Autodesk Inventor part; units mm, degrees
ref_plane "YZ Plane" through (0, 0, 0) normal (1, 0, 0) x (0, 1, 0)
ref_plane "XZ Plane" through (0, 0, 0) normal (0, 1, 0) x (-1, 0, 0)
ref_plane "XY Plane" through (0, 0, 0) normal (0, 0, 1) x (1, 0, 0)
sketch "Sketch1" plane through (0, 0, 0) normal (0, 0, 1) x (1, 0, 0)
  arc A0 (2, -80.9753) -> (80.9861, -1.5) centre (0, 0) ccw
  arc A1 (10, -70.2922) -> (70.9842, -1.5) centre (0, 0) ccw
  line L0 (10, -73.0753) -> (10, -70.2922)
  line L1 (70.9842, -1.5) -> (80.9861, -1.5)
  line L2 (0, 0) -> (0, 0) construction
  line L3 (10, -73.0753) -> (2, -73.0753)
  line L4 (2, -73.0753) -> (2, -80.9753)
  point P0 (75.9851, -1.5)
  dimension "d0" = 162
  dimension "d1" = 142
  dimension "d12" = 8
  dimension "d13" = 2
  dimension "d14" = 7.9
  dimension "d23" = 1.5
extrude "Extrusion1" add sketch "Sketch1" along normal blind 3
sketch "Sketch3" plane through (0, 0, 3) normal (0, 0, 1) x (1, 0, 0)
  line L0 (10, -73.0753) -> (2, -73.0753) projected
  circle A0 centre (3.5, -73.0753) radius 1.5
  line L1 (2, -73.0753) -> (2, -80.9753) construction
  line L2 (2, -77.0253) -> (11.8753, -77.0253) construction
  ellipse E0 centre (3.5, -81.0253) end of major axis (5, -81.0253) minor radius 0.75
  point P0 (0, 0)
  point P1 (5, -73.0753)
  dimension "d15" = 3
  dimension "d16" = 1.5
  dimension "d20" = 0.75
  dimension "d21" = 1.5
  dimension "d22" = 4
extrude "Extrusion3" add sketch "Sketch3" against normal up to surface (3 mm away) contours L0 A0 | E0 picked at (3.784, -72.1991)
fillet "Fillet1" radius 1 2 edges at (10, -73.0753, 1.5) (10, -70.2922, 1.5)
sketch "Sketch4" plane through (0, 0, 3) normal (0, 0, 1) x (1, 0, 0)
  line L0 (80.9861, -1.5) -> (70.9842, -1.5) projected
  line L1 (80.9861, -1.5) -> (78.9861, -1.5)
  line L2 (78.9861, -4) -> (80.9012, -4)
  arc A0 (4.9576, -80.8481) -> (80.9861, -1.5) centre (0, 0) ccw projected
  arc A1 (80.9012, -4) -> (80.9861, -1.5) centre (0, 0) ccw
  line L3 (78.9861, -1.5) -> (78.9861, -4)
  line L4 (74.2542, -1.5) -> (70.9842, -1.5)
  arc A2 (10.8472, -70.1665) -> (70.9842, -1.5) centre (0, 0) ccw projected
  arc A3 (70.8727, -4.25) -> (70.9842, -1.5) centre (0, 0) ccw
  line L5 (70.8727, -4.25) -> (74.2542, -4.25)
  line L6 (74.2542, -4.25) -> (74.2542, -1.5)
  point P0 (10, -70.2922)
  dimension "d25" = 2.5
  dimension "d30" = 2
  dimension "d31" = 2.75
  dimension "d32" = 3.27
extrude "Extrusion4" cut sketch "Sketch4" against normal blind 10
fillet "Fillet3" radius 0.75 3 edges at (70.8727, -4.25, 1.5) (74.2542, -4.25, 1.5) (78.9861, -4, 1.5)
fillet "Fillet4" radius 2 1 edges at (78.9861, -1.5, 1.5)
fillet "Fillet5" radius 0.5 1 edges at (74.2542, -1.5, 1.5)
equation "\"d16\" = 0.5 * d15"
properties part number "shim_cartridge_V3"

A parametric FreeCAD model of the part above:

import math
import FreeCAD as App
import Part
import Sketcher
Q = App.Units.Quantity


def edges_at(feature, points):
    """Names of the edges that pass closest to the given points."""
    edges = feature.Shape.Edges
    near = lambda p: min(range(len(edges)), key=lambda i: edges[i].distToShape(Part.Vertex(*p))[0])
    return sorted({f"Edge{near(p) + 1}" for p in points})

doc = App.newDocument("Part")
body = doc.addObject("PartDesign::Body", "Body")

sketch1 = doc.addObject("Sketcher::SketchObject", "Sketch")
body.addObject(sketch1)
sketch1.AttachmentSupport = (doc.XY_Plane, [""])
sketch1.MapMode = "FlatFace"
sketch1.addGeometry([
    Part.LineSegment(App.Vector(2, -73.1, 0), App.Vector(2, -81, 0)),
    Part.ArcOfCircle(Part.Circle(App.Vector(0, 0, 0), App.Vector(0, 0, 1), 81), math.radians(-89), math.radians(-1)),
    Part.LineSegment(App.Vector(81, -1.5, 0), App.Vector(71, -1.5, 0)),
    Part.ArcOfCircle(Part.Circle(App.Vector(0, 0, 0), App.Vector(0, 0, 1), 71), math.radians(-82), math.radians(-1)),
    Part.LineSegment(App.Vector(10, -70.3, 0), App.Vector(10, -73.1, 0)),
    Part.LineSegment(App.Vector(10, -73.1, 0), App.Vector(2, -73.1, 0)),
], False)
sketch1.addConstraint([
    Sketcher.Constraint("Coincident", 0, 2, 1, 1),
    Sketcher.Constraint("Coincident", 1, 2, 2, 1),
    Sketcher.Constraint("Coincident", 2, 2, 3, 2),
    Sketcher.Constraint("Coincident", 3, 1, 4, 1),
    Sketcher.Constraint("Coincident", 4, 2, 5, 1),
    Sketcher.Constraint("Coincident", 5, 2, 0, 1),
    Sketcher.Constraint("Vertical", 0),
    Sketcher.Constraint("Horizontal", 2),
    Sketcher.Constraint("Vertical", 4),
    Sketcher.Constraint("Horizontal", 5),
    Sketcher.Constraint("Coincident", 1, 3, -1, 1),
    Sketcher.Constraint("Coincident", 3, 3, -1, 1),
    Sketcher.Constraint("Radius", 1, Q("81 mm")),
    Sketcher.Constraint("Radius", 3, Q("71 mm")),
    Sketcher.Constraint("DistanceX", 5, 2, 5, 1, Q("8 mm")),
    Sketcher.Constraint("DistanceY", 0, 2, 0, 1, Q("7.9 mm")),
    Sketcher.Constraint("DistanceX", -1, 1, 0, 2, Q("2 mm")),
    Sketcher.Constraint("DistanceY", 1, 2, -1, 1, Q("1.5 mm")),
])
pad1 = doc.addObject("PartDesign::Pad", "Pad")
body.addObject(pad1)
pad1.Profile = sketch1
pad1.Length = 3

sketch2 = doc.addObject("Sketcher::SketchObject", "Sketch001")
body.addObject(sketch2)
sketch2.AttachmentSupport = (doc.XY_Plane, [""])
sketch2.MapMode = "FlatFace"
sketch2.AttachmentOffset = App.Placement(App.Vector(0, 0, 3), App.Rotation())
sketch2.addGeometry([
    Part.LineSegment(App.Vector(2, -73.0753, 0), App.Vector(5, -73.0753, 0)),
    Part.ArcOfCircle(Part.Circle(App.Vector(3.5, -73.0753, 0), App.Vector(0, 0, 1), 1.5), math.radians(0), math.radians(180)),
    Part.Ellipse(App.Vector(5, -81.0253, 0), App.Vector(3.5, -80.2753, 0), App.Vector(3.5, -81.0253, 0)),
], False)
sketch2.addConstraint([
    Sketcher.Constraint("Block", 2),
    Sketcher.Constraint("Coincident", 0, 1, 1, 2),
    Sketcher.Constraint("Coincident", 1, 1, 0, 2),
    Sketcher.Constraint("Horizontal", 0),
    Sketcher.Constraint("Horizontal", 1, 3, 0, 1),
    Sketcher.Constraint("Radius", 1, Q("1.5 mm")),
    Sketcher.Constraint("DistanceX", -1, 1, 0, 1, Q("2 mm")),
    Sketcher.Constraint("DistanceY", 1, 3, -1, 1, Q("73.0753 mm")),
])
pad2 = doc.addObject("PartDesign::Pad", "Pad001")
body.addObject(pad2)
pad2.Profile = sketch2
pad2.Length = 3
pad2.Reversed = True
doc.recompute()

fillet = doc.addObject("PartDesign::Fillet", "Fillet")
body.addObject(fillet)
fillet.Base = (pad2, edges_at(pad2, [(10, -73.075, 1.5), (10, -70.292, 1.5)]))
fillet.Radius = 1

sketch3 = doc.addObject("Sketcher::SketchObject", "Sketch002")
body.addObject(sketch3)
sketch3.AttachmentSupport = (doc.XY_Plane, [""])
sketch3.MapMode = "FlatFace"
sketch3.AttachmentOffset = App.Placement(App.Vector(0, 0, 3), App.Rotation())
sketch3.addGeometry([
    Part.ArcOfCircle(Part.Circle(App.Vector(0, 0, 0), App.Vector(0, 0, 1), 81), math.radians(-2.83), math.radians(-1.06)),
    Part.LineSegment(App.Vector(81, -1.5, 0), App.Vector(79, -1.5, 0)),
    Part.LineSegment(App.Vector(79, -1.5, 0), App.Vector(79, -4, 0)),
    Part.LineSegment(App.Vector(79, -4, 0), App.Vector(80.9, -4, 0)),
    Part.LineSegment(App.Vector(74.3, -4.2, 0), App.Vector(74.3, -1.5, 0)),
    Part.LineSegment(App.Vector(74.3, -1.5, 0), App.Vector(71, -1.5, 0)),
    Part.ArcOfCircle(Part.Circle(App.Vector(0, 0, 0), App.Vector(0, 0, 1), 71), math.radians(-3.43), math.radians(-1.21)),
    Part.LineSegment(App.Vector(70.9, -4.2, 0), App.Vector(74.3, -4.2, 0)),
], False)
sketch3.addConstraint([
    Sketcher.Constraint("Coincident", 0, 2, 1, 1),
    Sketcher.Constraint("Coincident", 1, 2, 2, 1),
    Sketcher.Constraint("Coincident", 2, 2, 3, 1),
    Sketcher.Constraint("Coincident", 3, 2, 0, 1),
    Sketcher.Constraint("Coincident", 4, 2, 5, 1),
    Sketcher.Constraint("Coincident", 5, 2, 6, 2),
    Sketcher.Constraint("Coincident", 6, 1, 7, 1),
    Sketcher.Constraint("Coincident", 7, 2, 4, 1),
    Sketcher.Constraint("Horizontal", 1),
    Sketcher.Constraint("Vertical", 2),
    Sketcher.Constraint("Horizontal", 3),
    Sketcher.Constraint("Vertical", 4),
    Sketcher.Constraint("Horizontal", 5),
    Sketcher.Constraint("Horizontal", 7),
    Sketcher.Constraint("Coincident", 0, 3, -1, 1),
    Sketcher.Constraint("Coincident", 6, 3, -1, 1),
    Sketcher.Constraint("Horizontal", 1, 2, 4, 2),
    Sketcher.Constraint("DistanceX", 1, 2, 1, 1, Q("2 mm")),
    Sketcher.Constraint("DistanceY", 2, 2, 2, 1, Q("2.5 mm")),
    Sketcher.Constraint("Radius", 0, Q("81 mm")),
    Sketcher.Constraint("Radius", 6, Q("71 mm")),
    Sketcher.Constraint("DistanceX", 5, 2, 5, 1, Q("3.27 mm")),
    Sketcher.Constraint("DistanceY", 4, 1, 4, 2, Q("2.75 mm")),
    Sketcher.Constraint("DistanceY", 2, 2, -1, 1, Q("4 mm")),
])
pocket1 = doc.addObject("PartDesign::Pocket", "Pocket")
body.addObject(pocket1)
pocket1.Profile = sketch3
pocket1.Length = 10
doc.recompute()

fillet2 = doc.addObject("PartDesign::Fillet", "Fillet001")
body.addObject(fillet2)
fillet2.Base = (pocket1, edges_at(pocket1, [(70.873, -4.25, 1.5), (74.254, -4.25, 1.5), (78.986, -4, 1.5)]))
fillet2.Radius = 0.75
doc.recompute()

fillet3 = doc.addObject("PartDesign::Fillet", "Fillet002")
body.addObject(fillet3)
fillet3.Base = (fillet2, edges_at(fillet2, [(78.986, -1.5, 1.5)]))
fillet3.Radius = 2
doc.recompute()

fillet4 = doc.addObject("PartDesign::Fillet", "Fillet003")
body.addObject(fillet4)
fillet4.Base = (fillet3, edges_at(fillet3, [(74.254, -1.5, 1.5)]))
fillet4.Radius = 0.5

doc.recompute()
